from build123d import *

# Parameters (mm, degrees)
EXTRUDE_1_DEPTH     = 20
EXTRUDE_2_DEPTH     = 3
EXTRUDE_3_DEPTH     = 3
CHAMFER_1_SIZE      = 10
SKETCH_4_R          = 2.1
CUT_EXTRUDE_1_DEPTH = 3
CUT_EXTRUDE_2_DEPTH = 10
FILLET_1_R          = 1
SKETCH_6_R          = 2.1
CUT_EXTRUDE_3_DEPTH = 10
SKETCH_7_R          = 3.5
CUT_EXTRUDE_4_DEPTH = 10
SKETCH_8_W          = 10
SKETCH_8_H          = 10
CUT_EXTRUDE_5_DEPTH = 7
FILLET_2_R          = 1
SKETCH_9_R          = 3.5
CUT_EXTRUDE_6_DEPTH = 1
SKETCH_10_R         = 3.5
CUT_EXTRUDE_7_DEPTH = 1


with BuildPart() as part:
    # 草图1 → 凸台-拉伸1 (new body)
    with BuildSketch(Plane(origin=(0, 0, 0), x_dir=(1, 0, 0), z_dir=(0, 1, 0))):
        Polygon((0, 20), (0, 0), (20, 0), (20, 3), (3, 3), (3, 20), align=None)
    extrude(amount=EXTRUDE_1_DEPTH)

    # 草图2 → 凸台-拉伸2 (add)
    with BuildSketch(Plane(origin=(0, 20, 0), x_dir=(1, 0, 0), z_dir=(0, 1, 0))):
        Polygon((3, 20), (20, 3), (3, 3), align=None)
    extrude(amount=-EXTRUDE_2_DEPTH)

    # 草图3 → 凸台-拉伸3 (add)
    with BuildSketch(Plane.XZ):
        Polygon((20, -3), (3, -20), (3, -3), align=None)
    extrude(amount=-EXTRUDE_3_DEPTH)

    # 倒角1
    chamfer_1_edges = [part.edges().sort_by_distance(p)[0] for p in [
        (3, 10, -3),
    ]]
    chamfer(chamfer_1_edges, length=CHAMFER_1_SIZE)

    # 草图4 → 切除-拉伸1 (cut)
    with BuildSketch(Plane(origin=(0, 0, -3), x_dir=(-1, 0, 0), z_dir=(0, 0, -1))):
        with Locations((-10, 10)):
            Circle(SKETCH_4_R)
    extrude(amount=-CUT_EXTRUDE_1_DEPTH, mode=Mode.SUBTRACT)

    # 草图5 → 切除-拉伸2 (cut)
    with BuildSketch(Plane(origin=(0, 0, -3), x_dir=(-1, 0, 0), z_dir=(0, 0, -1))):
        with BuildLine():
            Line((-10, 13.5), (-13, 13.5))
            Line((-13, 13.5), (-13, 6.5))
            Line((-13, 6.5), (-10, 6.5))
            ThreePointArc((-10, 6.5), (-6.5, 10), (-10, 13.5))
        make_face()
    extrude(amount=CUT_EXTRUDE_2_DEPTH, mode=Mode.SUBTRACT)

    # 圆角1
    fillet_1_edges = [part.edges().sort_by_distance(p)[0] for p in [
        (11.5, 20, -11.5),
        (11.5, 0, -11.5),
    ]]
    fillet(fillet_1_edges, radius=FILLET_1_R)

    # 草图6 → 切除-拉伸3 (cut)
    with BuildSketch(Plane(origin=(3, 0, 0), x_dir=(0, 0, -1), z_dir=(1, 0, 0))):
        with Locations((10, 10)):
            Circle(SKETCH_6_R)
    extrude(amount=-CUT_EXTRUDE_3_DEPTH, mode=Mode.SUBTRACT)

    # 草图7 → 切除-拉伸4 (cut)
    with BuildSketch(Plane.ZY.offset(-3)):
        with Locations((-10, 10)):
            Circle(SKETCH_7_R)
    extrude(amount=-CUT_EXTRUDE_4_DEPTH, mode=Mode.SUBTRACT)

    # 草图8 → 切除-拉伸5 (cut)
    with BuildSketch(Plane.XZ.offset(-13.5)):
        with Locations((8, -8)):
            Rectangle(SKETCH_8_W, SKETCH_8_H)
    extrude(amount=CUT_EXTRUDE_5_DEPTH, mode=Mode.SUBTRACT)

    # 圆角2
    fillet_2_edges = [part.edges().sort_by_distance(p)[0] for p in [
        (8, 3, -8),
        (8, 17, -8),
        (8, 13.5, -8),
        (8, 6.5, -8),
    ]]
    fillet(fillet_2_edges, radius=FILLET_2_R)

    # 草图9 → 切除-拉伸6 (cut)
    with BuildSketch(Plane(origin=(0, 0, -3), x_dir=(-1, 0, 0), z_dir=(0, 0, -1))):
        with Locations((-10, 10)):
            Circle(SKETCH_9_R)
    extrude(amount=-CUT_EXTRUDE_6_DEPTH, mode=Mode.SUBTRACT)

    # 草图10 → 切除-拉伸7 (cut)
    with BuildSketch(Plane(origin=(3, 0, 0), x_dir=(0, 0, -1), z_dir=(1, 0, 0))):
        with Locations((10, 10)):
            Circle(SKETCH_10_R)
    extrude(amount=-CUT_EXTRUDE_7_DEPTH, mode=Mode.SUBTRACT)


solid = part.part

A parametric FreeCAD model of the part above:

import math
import FreeCAD as App
import Part
import Sketcher


def edges_at(feature, points):
    """Names of the edges that pass closest to the given points."""
    edges = feature.Shape.Edges
    near = lambda p: min(range(len(edges)), key=lambda i: edges[i].distToShape(Part.Vertex(*p))[0])
    return sorted({f"Edge{near(p) + 1}" for p in points})


def add_polygon(sketch, points):
    """Adds a closed chain of lines whose ends are joined by coincident constraints."""
    first, n = sketch.GeometryCount, len(points)
    for a, b in zip(points, points[1:] + points[:1]):
        sketch.addGeometry(Part.LineSegment(App.Vector(*a, 0), App.Vector(*b, 0)), False)
    for i in range(n):
        sketch.addConstraint(Sketcher.Constraint("Coincident", first + i, 2, first + (i + 1) % n, 1))

doc = App.newDocument("Part")
body = doc.addObject("PartDesign::Body", "Body")

# Sketch on XZ plane
sketch1 = body.newObject("Sketcher::SketchObject", "Sketch")
sketch1.AttachmentSupport = (doc.getObject("XZ_Plane"), [""])
sketch1.MapMode = "FlatFace"
add_polygon(sketch1, [(0, -20), (0, 0), (20, 0), (20, -3), (3, -3), (3, -20)])  # lines 0-5
sketch1.addConstraint([
    Sketcher.Constraint("Vertical", 0),
    Sketcher.Constraint("Horizontal", 1),
    Sketcher.Constraint("Vertical", 2),
    Sketcher.Constraint("Horizontal", 3),
    Sketcher.Constraint("Vertical", 4),
    Sketcher.Constraint("Horizontal", 5),
    Sketcher.Constraint("Coincident", 0, 2, -1, 1),
    Sketcher.Constraint("Equal", 1, 0),
    Sketcher.Constraint("Equal", 5, 2),
    Sketcher.Constraint("DistanceX", 1, 1, 1, 2, 20.0),
    Sketcher.Constraint("DistanceX", 3, 2, 3, 1, 17.0),
])
pad1 = body.newObject("PartDesign::Pad", "Pad")
pad1.Profile = sketch1
pad1.Length = 20
pad1.Reversed = True

# Sketch on XZ plane
sketch2 = body.newObject("Sketcher::SketchObject", "Sketch001")
sketch2.AttachmentSupport = (doc.getObject("XZ_Plane"), [""])
sketch2.MapMode = "FlatFace"
sketch2.AttachmentOffset = App.Placement(App.Vector(0, 0, -20), App.Rotation())
add_polygon(sketch2, [(20, -3), (3, -20), (3, -3)])  # lines 0-2
sketch2.addConstraint([
    Sketcher.Constraint("Vertical", 1),
    Sketcher.Constraint("Horizontal", 2),
    Sketcher.Constraint("Equal", 2, 1),
    Sketcher.Constraint("DistanceX", 2, 1, 2, 2, 17.0),
    Sketcher.Constraint("DistanceX", -1, 1, 0, 2, 3.0),
    Sketcher.Constraint("DistanceY", 0, 2, -1, 1, 20.0),
])
pad2 = body.newObject("PartDesign::Pad", "Pad001")
pad2.Profile = sketch2
pad2.Length = 3

# Sketch on XZ plane
sketch3 = body.newObject("Sketcher::SketchObject", "Sketch002")
sketch3.AttachmentSupport = (doc.getObject("XZ_Plane"), [""])
sketch3.MapMode = "FlatFace"
add_polygon(sketch3, [(3, -20), (20, -3), (3, -3)])  # lines 0-2
sketch3.addConstraint([
    Sketcher.Constraint("Horizontal", 1),
    Sketcher.Constraint("Vertical", 2),
    Sketcher.Constraint("Equal", 1, 2),
    Sketcher.Constraint("DistanceX", 1, 2, 1, 1, 17.0),
    Sketcher.Constraint("DistanceX", -1, 1, 0, 2, 20.0),
    Sketcher.Constraint("DistanceY", 0, 2, -1, 1, 3.0),
])
pad3 = body.newObject("PartDesign::Pad", "Pad002")
pad3.Profile = sketch3
pad3.Length = 3
pad3.Reversed = True
doc.recompute()

chamfer = body.newObject("PartDesign::Chamfer", "Chamfer")
chamfer.Base = (pad3, edges_at(pad3, [(3, 10, -3)]))
chamfer.Size = 10

# Sketch on XY plane
sketch4 = body.newObject("Sketcher::SketchObject", "Sketch003")
sketch4.AttachmentSupport = (doc.getObject("XY_Plane"), [""])
sketch4.MapMode = "FlatFace"
sketch4.AttachmentOffset = App.Placement(App.Vector(0, 0, -3), App.Rotation())
sketch4.addGeometry(Part.Circle(App.Vector(10, 10, 0), App.Vector(0, 0, 1), 2.1), False)
sketch4.addConstraint([
    Sketcher.Constraint("Diameter", 0, 4.2),
    Sketcher.Constraint("DistanceX", -1, 1, 0, 3, 10.0),
    Sketcher.Constraint("DistanceY", -1, 1, 0, 3, 10.0),
])
pocket1 = body.newObject("PartDesign::Pocket", "Pocket")
pocket1.Profile = sketch4
pocket1.Length = 3
pocket1.Reversed = True

# Sketch on XY plane
sketch5 = body.newObject("Sketcher::SketchObject", "Sketch004")
sketch5.AttachmentSupport = (doc.getObject("XY_Plane"), [""])
sketch5.MapMode = "FlatFace"
sketch5.AttachmentOffset = App.Placement(App.Vector(0, 0, -3), App.Rotation())
sketch5.addGeometry([
    Part.LineSegment(App.Vector(10, 13.5, 0), App.Vector(13, 13.5, 0)),
    Part.LineSegment(App.Vector(13, 13.5, 0), App.Vector(13, 6.5, 0)),
    Part.LineSegment(App.Vector(13, 6.5, 0), App.Vector(10, 6.5, 0)),
    Part.ArcOfCircle(Part.Circle(App.Vector(10, 10, 0), App.Vector(0, 0, 1), 3.5), math.radians(90), math.radians(270)),
], False)
sketch5.addConstraint([
    Sketcher.Constraint("Coincident", 0, 2, 1, 1),
    Sketcher.Constraint("Coincident", 1, 2, 2, 1),
    Sketcher.Constraint("Tangent", 2, 2, 3, 2),
    Sketcher.Constraint("Tangent", 3, 1, 0, 1),
    Sketcher.Constraint("Horizontal", 0),
    Sketcher.Constraint("Vertical", 1),
    Sketcher.Constraint("Horizontal", 2),
    Sketcher.Constraint("Radius", 3, 3.5),
    Sketcher.Constraint("DistanceX", 0, 1, 0, 2, 3.0),
    Sketcher.Constraint("DistanceX", -1, 1, 3, 3, 10.0),
    Sketcher.Constraint("DistanceY", -1, 1, 3, 3, 10.0),
])
pocket2 = body.newObject("PartDesign::Pocket", "Pocket001")
pocket2.Profile = sketch5
pocket2.Length = 10
doc.recompute()

fillet = body.newObject("PartDesign::Fillet", "Fillet")
fillet.Base = (pocket2, edges_at(pocket2, [(11.5, 20, -11.5), (11.5, 0, -11.5)]))
fillet.Radius = 1

# Sketch on YZ plane
sketch6 = body.newObject("Sketcher::SketchObject", "Sketch005")
sketch6.AttachmentSupport = (doc.getObject("YZ_Plane"), [""])
sketch6.MapMode = "FlatFace"
sketch6.AttachmentOffset = App.Placement(App.Vector(0, 0, 3), App.Rotation())
sketch6.addGeometry(Part.Circle(App.Vector(10, -10, 0), App.Vector(0, 0, 1), 2.1), False)
sketch6.addConstraint([
    Sketcher.Constraint("Diameter", 0, 4.2),
    Sketcher.Constraint("DistanceX", -1, 1, 0, 3, 10.0),
    Sketcher.Constraint("DistanceY", 0, 3, -1, 1, 10.0),
])
pocket3 = body.newObject("PartDesign::Pocket", "Pocket002")
pocket3.Profile = sketch6
pocket3.Length = 10

# Sketch on YZ plane
sketch7 = body.newObject("Sketcher::SketchObject", "Sketch006")
sketch7.AttachmentSupport = (doc.getObject("YZ_Plane"), [""])
sketch7.MapMode = "FlatFace"
sketch7.AttachmentOffset = App.Placement(App.Vector(0, 0, 3), App.Rotation())
sketch7.addGeometry(Part.Circle(App.Vector(10, -10, 0), App.Vector(0, 0, 1), 3.5), False)
sketch7.addConstraint([
    Sketcher.Constraint("Diameter", 0, 7.0),
    Sketcher.Constraint("DistanceX", -1, 1, 0, 3, 10.0),
    Sketcher.Constraint("DistanceY", 0, 3, -1, 1, 10.0),
])
pocket4 = body.newObject("PartDesign::Pocket", "Pocket003")
pocket4.Profile = sketch7
pocket4.Length = 10
pocket4.Reversed = True

# Sketch on XZ plane
sketch8 = body.newObject("Sketcher::SketchObject", "Sketch007")
sketch8.AttachmentSupport = (doc.getObject("XZ_Plane"), [""])
sketch8.MapMode = "FlatFace"
sketch8.AttachmentOffset = App.Placement(App.Vector(0, 0, -13.5), App.Rotation())
add_polygon(sketch8, [(3, -3), (3, -13), (13, -13), (13, -3)])  # lines 0-3
sketch8.addConstraint([
    Sketcher.Constraint("Vertical", 0),
    Sketcher.Constraint("Horizontal", 1),
    Sketcher.Constraint("Vertical", 2),
    Sketcher.Constraint("Horizontal", 3),
    Sketcher.Constraint("Equal", 3, 0),
    Sketcher.Constraint("DistanceX", 1, 1, 1, 2, 10.0),
    Sketcher.Constraint("DistanceX", -1, 1, 0, 2, 3.0),
    Sketcher.Constraint("DistanceY", 0, 2, -1, 1, 13.0),
])
pocket5 = body.newObject("PartDesign::Pocket", "Pocket004")
pocket5.Profile = sketch8
pocket5.Length = 7
pocket5.Reversed = True
doc.recompute()

fillet2 = body.newObject("PartDesign::Fillet", "Fillet001")
fillet2.Base = (pocket5, edges_at(pocket5, [
    (8, 3, -8),
    (8, 17, -8),
    (8, 13.5, -8),
    (8, 6.5, -8),
]))
fillet2.Radius = 1

# Sketch on XY plane
sketch9 = body.newObject("Sketcher::SketchObject", "Sketch008")
sketch9.AttachmentSupport = (doc.getObject("XY_Plane"), [""])
sketch9.MapMode = "FlatFace"
sketch9.AttachmentOffset = App.Placement(App.Vector(0, 0, -3), App.Rotation())
sketch9.addGeometry(Part.Circle(App.Vector(10, 10, 0), App.Vector(0, 0, 1), 3.5), False)
sketch9.addConstraint([
    Sketcher.Constraint("Diameter", 0, 7.0),
    Sketcher.Constraint("DistanceX", -1, 1, 0, 3, 10.0),
    Sketcher.Constraint("DistanceY", -1, 1, 0, 3, 10.0),
])
pocket6 = body.newObject("PartDesign::Pocket", "Pocket005")
pocket6.Profile = sketch9
pocket6.Length = 1
pocket6.Reversed = True

# Sketch on YZ plane
sketch10 = body.newObject("Sketcher::SketchObject", "Sketch009")
sketch10.AttachmentSupport = (doc.getObject("YZ_Plane"), [""])
sketch10.MapMode = "FlatFace"
sketch10.AttachmentOffset = App.Placement(App.Vector(0, 0, 3), App.Rotation())
sketch10.addGeometry(Part.Circle(App.Vector(10, -10, 0), App.Vector(0, 0, 1), 3.5), False)
sketch10.addConstraint([
    Sketcher.Constraint("Diameter", 0, 7.0),
    Sketcher.Constraint("DistanceX", -1, 1, 0, 3, 10.0),
    Sketcher.Constraint("DistanceY", 0, 3, -1, 1, 10.0),
])
pocket7 = body.newObject("PartDesign::Pocket", "Pocket006")
pocket7.Profile = sketch10
pocket7.Length = 1

doc.recompute()
